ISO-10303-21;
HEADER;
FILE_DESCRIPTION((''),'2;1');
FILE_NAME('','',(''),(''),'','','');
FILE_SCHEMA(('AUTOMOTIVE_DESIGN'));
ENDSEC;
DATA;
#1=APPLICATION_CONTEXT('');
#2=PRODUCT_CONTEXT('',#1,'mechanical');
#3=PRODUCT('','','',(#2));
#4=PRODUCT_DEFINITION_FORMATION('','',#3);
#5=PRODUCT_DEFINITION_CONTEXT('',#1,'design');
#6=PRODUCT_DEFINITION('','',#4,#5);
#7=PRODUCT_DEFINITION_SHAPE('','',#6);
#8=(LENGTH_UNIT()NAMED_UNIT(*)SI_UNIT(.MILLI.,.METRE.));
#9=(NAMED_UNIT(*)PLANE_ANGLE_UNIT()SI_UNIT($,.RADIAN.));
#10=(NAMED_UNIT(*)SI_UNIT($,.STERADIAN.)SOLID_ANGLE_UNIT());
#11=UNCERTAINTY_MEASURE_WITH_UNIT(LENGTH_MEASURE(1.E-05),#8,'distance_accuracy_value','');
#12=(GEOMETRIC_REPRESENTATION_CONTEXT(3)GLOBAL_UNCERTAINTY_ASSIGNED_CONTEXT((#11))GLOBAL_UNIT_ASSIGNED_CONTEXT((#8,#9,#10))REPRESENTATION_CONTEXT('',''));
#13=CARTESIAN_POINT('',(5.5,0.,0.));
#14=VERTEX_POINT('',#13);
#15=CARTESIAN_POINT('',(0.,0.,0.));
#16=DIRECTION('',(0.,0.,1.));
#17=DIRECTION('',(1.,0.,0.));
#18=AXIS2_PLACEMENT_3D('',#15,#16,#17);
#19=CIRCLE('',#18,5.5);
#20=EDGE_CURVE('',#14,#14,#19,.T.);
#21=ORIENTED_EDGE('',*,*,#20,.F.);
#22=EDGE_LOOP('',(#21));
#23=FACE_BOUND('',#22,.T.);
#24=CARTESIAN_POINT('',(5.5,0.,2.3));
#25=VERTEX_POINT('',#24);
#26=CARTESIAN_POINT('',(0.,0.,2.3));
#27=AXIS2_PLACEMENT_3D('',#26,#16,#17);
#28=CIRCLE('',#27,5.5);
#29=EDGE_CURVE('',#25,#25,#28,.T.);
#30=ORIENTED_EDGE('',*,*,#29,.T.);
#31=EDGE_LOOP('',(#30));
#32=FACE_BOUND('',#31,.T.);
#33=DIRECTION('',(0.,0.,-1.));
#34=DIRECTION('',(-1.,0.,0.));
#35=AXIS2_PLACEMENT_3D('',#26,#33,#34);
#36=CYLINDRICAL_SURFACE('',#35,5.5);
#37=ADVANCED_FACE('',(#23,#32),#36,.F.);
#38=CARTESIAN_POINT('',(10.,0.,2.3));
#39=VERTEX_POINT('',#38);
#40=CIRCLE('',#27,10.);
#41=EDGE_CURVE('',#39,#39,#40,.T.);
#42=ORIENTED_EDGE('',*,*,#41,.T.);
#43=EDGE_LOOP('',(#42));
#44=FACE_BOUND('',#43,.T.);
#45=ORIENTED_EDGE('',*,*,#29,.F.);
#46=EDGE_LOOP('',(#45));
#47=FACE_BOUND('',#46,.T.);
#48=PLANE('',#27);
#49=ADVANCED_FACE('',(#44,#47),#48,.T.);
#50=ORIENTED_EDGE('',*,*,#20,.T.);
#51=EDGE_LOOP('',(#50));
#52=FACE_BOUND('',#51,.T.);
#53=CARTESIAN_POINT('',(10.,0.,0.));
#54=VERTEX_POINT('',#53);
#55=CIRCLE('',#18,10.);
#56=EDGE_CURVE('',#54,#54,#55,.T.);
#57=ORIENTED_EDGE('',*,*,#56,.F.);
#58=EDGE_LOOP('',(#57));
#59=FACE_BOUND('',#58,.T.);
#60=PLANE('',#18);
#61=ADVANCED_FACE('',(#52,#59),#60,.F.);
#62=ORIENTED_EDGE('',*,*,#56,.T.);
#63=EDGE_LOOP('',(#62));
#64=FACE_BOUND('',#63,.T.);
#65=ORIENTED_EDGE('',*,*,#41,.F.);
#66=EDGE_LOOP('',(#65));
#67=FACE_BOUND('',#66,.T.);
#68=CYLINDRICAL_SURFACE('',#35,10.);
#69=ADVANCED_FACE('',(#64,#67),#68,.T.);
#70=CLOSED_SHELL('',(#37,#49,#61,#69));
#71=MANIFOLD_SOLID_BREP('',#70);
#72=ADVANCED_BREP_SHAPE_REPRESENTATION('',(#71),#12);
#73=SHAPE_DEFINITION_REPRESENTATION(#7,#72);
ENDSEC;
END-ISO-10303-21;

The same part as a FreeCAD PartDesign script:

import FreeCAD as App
import Part
import Sketcher
from FreeCAD import Vector
Q = App.Units.Quantity

doc = App.newDocument("Part")
body = doc.addObject("PartDesign::Body", "Body")

# Sketch on XY plane
sketch1 = body.newObject("Sketcher::SketchObject", "Sketch")
sketch1.AttachmentSupport = (doc.getObject("XY_Plane"), [""])
sketch1.MapMode = "FlatFace"
sketch1.addGeometry(Part.Circle(Vector(0, 0, 0), Vector(0, 0, 1), 10), False)
sketch1.addGeometry(Part.Circle(Vector(0, 0, 0), Vector(0, 0, 1), 6), False)
sketch1.addConstraint(Sketcher.Constraint("Coincident", 0, 3, -1, 1))
sketch1.addConstraint(Sketcher.Constraint("Coincident", 1, 3, -1, 1))
sketch1.addConstraint(Sketcher.Constraint("Diameter", 0, Q("20 mm")))
sketch1.addConstraint(Sketcher.Constraint("Diameter", 1, Q("11 mm")))
pad1 = body.newObject("PartDesign::Pad", "Pad")
pad1.Profile = sketch1
pad1.Length = 2.3

doc.recompute()
